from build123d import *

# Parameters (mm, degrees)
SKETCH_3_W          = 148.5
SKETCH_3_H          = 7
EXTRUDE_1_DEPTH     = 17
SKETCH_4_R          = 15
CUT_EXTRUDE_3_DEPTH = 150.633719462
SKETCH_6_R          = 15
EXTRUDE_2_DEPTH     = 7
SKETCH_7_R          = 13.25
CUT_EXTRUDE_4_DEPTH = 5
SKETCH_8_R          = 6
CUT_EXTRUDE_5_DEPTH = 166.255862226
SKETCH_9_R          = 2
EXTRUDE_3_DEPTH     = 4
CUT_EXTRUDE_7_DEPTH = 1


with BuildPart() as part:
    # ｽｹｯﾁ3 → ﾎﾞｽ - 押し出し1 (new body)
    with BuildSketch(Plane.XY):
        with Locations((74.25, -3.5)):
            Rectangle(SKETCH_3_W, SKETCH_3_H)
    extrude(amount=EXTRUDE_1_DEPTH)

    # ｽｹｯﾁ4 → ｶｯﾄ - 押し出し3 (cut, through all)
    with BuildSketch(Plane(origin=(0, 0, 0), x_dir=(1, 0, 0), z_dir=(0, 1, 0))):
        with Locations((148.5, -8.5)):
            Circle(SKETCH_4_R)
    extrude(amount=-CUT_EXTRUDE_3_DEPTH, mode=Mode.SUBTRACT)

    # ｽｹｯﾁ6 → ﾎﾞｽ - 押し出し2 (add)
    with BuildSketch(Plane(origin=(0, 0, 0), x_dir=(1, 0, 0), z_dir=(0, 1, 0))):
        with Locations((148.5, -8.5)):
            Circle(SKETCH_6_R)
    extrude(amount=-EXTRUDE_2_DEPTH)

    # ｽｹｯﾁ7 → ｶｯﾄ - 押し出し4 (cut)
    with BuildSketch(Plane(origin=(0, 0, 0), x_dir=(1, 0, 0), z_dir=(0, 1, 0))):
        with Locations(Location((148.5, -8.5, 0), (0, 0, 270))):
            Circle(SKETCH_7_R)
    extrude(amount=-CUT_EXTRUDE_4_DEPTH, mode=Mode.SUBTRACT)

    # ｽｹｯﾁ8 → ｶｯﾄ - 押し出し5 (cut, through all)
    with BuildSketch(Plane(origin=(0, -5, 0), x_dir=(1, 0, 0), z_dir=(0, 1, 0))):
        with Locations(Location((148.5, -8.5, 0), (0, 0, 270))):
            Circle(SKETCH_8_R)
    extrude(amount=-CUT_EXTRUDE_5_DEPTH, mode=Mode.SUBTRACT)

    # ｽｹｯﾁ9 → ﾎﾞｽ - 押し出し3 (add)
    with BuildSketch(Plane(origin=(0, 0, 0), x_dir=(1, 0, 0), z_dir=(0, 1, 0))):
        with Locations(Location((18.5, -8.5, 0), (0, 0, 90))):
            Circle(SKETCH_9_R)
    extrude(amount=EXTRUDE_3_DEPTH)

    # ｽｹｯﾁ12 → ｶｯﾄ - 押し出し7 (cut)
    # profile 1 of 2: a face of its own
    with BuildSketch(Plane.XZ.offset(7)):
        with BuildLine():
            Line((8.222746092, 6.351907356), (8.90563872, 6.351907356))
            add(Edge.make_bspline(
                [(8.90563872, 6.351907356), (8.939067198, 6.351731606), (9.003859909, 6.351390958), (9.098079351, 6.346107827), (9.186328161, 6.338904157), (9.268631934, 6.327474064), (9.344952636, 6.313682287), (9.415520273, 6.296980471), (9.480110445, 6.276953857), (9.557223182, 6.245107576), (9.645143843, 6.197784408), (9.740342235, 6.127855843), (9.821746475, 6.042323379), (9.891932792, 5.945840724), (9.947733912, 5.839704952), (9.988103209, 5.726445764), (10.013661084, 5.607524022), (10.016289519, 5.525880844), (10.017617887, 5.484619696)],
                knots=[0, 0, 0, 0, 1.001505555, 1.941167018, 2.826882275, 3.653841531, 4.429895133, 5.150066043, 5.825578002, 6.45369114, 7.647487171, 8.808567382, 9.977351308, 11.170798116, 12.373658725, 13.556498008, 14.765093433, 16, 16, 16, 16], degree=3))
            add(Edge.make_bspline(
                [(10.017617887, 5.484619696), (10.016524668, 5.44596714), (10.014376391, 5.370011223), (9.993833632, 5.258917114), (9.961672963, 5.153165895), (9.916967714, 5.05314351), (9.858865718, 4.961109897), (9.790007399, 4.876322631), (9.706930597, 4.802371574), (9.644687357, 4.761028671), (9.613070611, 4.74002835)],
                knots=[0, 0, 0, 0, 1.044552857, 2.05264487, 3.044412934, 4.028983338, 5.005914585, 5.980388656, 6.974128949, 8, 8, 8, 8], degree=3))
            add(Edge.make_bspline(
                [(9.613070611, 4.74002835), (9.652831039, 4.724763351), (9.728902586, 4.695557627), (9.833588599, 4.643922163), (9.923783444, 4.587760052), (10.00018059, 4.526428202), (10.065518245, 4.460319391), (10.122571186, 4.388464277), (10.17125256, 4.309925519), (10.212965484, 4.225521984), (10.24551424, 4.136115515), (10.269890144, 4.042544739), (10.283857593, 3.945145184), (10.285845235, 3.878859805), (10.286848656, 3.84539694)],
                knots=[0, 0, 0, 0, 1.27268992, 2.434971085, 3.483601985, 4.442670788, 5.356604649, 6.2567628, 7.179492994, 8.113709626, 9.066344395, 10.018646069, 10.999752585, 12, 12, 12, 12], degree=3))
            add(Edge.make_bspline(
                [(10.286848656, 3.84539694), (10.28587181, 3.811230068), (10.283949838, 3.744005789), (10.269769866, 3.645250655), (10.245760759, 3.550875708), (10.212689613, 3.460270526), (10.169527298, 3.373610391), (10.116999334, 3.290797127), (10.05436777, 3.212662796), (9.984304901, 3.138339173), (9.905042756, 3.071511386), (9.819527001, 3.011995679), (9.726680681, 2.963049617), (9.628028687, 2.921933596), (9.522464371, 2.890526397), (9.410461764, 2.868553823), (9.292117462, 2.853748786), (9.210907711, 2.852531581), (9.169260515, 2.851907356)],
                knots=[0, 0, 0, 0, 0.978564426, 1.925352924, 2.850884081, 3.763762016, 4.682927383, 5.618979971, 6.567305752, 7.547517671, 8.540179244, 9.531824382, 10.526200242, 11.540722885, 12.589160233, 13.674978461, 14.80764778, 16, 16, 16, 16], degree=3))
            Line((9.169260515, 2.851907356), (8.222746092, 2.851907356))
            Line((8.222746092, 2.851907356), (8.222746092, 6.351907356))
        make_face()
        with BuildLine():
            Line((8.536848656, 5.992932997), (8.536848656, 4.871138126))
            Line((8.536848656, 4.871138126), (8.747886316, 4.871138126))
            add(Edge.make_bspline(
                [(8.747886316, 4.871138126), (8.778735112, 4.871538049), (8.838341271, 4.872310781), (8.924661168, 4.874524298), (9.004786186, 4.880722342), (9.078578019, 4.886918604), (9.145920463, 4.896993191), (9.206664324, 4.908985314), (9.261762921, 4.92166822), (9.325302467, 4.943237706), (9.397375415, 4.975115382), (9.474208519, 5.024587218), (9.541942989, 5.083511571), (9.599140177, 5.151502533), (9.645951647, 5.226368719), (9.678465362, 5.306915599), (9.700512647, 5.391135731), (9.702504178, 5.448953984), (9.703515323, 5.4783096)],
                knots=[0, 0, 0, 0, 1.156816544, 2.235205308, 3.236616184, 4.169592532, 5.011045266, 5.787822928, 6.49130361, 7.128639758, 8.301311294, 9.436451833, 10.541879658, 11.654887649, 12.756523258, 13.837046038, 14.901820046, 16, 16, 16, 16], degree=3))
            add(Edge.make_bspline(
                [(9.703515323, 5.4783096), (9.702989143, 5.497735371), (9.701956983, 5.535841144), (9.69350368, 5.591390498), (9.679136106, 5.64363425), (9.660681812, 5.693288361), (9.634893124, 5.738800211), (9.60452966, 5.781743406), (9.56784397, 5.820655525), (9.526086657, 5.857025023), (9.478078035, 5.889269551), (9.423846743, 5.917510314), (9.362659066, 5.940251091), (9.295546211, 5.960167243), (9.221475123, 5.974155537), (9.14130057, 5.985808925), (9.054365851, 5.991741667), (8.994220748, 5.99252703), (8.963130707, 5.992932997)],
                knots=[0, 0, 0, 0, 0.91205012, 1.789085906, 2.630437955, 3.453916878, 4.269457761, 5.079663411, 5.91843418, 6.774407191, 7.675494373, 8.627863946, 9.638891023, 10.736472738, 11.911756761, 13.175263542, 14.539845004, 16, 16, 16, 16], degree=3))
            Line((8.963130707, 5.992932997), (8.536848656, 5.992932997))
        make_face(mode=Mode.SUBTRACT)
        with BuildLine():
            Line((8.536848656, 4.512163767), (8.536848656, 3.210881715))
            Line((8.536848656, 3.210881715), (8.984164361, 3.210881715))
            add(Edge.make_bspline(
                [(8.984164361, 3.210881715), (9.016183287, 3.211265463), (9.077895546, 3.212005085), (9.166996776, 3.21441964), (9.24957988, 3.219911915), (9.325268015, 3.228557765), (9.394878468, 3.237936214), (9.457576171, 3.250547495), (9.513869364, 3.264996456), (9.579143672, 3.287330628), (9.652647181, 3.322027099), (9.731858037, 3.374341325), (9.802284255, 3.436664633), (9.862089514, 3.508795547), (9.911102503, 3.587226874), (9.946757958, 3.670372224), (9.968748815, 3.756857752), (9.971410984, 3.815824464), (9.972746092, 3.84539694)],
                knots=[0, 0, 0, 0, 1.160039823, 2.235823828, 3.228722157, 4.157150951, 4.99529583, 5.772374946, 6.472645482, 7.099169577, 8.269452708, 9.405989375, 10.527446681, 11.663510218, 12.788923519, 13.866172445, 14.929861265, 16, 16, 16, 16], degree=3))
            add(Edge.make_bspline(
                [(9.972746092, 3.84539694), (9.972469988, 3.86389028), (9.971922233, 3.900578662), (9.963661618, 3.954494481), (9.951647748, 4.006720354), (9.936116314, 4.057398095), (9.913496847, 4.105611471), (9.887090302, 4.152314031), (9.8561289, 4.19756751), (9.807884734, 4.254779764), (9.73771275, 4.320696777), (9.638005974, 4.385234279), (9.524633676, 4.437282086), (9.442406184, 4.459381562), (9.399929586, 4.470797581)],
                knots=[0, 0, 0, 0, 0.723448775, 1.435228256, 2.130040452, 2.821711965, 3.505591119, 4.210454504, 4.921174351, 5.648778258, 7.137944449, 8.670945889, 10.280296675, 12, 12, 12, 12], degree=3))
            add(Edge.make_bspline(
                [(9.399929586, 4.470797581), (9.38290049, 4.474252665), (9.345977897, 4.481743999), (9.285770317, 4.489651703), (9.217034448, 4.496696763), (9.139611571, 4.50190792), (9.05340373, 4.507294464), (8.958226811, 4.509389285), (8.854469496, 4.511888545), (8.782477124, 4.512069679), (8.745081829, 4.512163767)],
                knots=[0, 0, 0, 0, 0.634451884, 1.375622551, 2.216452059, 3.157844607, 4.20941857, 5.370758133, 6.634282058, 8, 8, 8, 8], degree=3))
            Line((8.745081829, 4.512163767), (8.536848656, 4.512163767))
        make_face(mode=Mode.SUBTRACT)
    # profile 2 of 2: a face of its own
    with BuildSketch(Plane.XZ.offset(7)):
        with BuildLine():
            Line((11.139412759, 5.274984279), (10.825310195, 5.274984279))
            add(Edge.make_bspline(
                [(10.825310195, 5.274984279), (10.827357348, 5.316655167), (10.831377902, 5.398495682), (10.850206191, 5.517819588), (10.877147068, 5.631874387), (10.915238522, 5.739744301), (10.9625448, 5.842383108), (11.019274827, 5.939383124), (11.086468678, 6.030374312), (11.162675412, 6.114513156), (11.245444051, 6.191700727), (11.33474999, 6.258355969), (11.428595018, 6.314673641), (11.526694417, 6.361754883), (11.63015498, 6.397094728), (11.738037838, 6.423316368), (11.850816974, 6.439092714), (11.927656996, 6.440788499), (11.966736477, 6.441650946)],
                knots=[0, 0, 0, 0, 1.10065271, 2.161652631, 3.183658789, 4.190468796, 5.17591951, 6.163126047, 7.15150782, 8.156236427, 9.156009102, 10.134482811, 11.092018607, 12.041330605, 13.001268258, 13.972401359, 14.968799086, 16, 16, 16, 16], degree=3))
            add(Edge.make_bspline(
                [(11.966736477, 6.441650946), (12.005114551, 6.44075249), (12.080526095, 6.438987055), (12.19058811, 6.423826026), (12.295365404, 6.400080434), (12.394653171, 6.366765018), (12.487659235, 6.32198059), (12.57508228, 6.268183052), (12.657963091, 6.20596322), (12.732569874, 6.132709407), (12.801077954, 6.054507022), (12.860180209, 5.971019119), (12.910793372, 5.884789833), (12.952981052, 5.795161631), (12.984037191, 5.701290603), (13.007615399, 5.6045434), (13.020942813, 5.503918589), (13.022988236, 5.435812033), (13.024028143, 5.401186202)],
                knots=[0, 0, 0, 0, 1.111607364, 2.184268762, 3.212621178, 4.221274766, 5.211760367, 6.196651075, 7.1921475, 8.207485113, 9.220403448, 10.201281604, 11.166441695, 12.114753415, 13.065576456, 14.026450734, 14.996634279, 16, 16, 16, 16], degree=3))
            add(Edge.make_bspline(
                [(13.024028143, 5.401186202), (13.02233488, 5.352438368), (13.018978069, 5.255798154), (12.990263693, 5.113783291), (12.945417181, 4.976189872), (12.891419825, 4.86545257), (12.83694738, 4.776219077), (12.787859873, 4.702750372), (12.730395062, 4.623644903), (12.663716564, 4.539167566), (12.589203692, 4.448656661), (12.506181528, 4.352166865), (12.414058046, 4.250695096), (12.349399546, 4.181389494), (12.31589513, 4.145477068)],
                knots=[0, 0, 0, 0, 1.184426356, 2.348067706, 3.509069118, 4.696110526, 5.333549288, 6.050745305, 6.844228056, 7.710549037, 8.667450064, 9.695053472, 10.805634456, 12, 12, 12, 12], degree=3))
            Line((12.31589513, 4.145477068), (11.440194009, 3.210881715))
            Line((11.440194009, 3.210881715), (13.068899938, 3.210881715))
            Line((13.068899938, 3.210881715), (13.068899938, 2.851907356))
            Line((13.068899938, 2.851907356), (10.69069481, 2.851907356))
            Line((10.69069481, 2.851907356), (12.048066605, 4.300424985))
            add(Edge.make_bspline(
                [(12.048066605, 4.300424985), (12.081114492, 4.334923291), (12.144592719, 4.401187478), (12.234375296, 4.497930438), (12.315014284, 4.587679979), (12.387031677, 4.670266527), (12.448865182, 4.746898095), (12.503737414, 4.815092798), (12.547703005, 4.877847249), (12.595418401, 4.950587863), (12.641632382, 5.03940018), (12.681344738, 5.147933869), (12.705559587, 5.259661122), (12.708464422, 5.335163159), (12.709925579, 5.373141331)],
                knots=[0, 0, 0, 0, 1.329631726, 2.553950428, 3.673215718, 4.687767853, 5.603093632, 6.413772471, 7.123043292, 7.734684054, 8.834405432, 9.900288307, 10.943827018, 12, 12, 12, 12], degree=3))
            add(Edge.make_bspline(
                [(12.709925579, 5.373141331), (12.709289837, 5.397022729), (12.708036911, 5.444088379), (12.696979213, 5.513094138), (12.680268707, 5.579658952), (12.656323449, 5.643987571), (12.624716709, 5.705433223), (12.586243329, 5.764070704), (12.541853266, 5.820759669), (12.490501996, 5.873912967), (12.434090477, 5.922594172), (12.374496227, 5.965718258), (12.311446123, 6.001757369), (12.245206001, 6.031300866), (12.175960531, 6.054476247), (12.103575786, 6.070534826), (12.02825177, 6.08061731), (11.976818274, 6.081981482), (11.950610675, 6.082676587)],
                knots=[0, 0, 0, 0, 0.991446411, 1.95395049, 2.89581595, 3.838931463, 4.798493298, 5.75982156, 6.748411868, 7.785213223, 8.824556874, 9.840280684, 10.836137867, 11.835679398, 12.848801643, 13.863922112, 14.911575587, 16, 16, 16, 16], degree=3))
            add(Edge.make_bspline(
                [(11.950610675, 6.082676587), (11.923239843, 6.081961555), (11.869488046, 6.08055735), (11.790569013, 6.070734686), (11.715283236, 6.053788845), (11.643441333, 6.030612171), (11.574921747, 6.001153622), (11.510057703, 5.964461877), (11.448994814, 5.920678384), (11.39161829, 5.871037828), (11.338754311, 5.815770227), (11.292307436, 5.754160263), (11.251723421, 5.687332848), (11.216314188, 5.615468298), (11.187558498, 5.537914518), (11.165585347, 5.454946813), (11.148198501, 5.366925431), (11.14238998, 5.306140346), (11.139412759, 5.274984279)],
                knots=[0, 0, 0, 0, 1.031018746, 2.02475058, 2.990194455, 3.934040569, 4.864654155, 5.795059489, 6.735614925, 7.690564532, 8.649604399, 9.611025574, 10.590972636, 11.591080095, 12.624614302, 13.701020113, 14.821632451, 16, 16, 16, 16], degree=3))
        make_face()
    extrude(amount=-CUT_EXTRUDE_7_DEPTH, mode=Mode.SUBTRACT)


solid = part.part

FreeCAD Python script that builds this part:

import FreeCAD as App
import Part
import Sketcher
from FreeCAD import Vector
Q = App.Units.Quantity


def add_polygon(sketch, points):
    """Adds a closed chain of lines whose ends are joined by coincident constraints."""
    first, n = sketch.GeometryCount, len(points)
    for a, b in zip(points, points[1:] + points[:1]):
        sketch.addGeometry(Part.LineSegment(App.Vector(*a, 0), App.Vector(*b, 0)), False)
    for i in range(n):
        sketch.addConstraint(Sketcher.Constraint("Coincident", first + i, 2, first + (i + 1) % n, 1))

doc = App.newDocument("Part")
params = doc.addObject("Spreadsheet::Sheet", "Params")
for row, (alias, value) in enumerate([
    ("sketch1_height", "7 mm"),
    ("sketch1_width", "148.5 mm"),
    ("pad1_length", "17 mm"),
    ("sketch2_diameter", "30 mm"),
    ("sketch3_diameter", "30 mm"),
    ("pad2_length", "7 mm"),
    ("sketch4_diameter", "26.5 mm"),
    ("pocket2_length", "5 mm"),
    ("sketch5_diameter", "12 mm"),
    ("sketch6_diameter", "4 mm"),
    ("pad3_length", "4 mm"),
    ("pocket4_length", "1 mm"),
], start=1):
    params.set(f"A{row}", alias)
    params.set(f"B{row}", "=" + value)
    params.setAlias(f"B{row}", alias)

body = doc.addObject("PartDesign::Body", "Body")

sketch1 = body.newObject("Sketcher::SketchObject", "Sketch")
sketch1.AttachmentSupport = (doc.getObject("XY_Plane"), [""])
sketch1.MapMode = "FlatFace"
add_polygon(sketch1, [(0, 0), (0, -7), (148.5, -7), (148.5, 0)])
sketch1.addConstraint(Sketcher.Constraint("Vertical", 0))
sketch1.addConstraint(Sketcher.Constraint("Horizontal", 1))
sketch1.addConstraint(Sketcher.Constraint("Vertical", 2))
sketch1.addConstraint(Sketcher.Constraint("Horizontal", 3))
sketch1.addConstraint(Sketcher.Constraint("Coincident", 3, 2, -1, 1))
sketch1.addConstraint(Sketcher.Constraint("DistanceY", 0, 2, 0, 1, Q("7 mm")))
sketch1.addConstraint(Sketcher.Constraint("DistanceX", 1, 1, 1, 2, Q("148.5 mm")))
sketch1.setExpression("Constraints[9]", "Params.sketch1_height")
sketch1.setExpression("Constraints[10]", "Params.sketch1_width")
pad1 = body.newObject("PartDesign::Pad", "Pad")
pad1.Profile = sketch1
pad1.setExpression("Length", "Params.pad1_length")

sketch2 = body.newObject("Sketcher::SketchObject", "Sketch001")
sketch2.AttachmentSupport = (doc.getObject("XZ_Plane"), [""])
sketch2.MapMode = "FlatFace"
sketch2.addGeometry(Part.Circle(Vector(148.5, 8.5, 0), Vector(0, 0, 1), 15), False)
sketch2.addConstraint(Sketcher.Constraint("Diameter", 0, Q("30 mm")))
sketch2.addConstraint(Sketcher.Constraint("DistanceX", -1, 1, 0, 3, Q("148.5 mm")))
sketch2.addConstraint(Sketcher.Constraint("DistanceY", -1, 1, 0, 3, Q("8.5 mm")))
sketch2.setExpression("Constraints[0]", "Params.sketch2_diameter")
pocket1 = body.newObject("PartDesign::Pocket", "Pocket")
pocket1.Profile = sketch2
pocket1.Type = "ThroughAll"
pocket1.Reversed = True

sketch3 = body.newObject("Sketcher::SketchObject", "Sketch002")
sketch3.AttachmentSupport = (doc.getObject("XZ_Plane"), [""])
sketch3.MapMode = "FlatFace"
sketch3.addGeometry(Part.Circle(Vector(148.5, 8.5, 0), Vector(0, 0, 1), 15), False)
sketch3.addConstraint(Sketcher.Constraint("Diameter", 0, Q("30 mm")))
sketch3.addConstraint(Sketcher.Constraint("DistanceX", -1, 1, 0, 3, Q("148.5 mm")))
sketch3.addConstraint(Sketcher.Constraint("DistanceY", -1, 1, 0, 3, Q("8.5 mm")))
sketch3.setExpression("Constraints[0]", "Params.sketch3_diameter")
pad2 = body.newObject("PartDesign::Pad", "Pad001")
pad2.Profile = sketch3
pad2.setExpression("Length", "Params.pad2_length")

sketch4 = body.newObject("Sketcher::SketchObject", "Sketch003")
sketch4.AttachmentSupport = (doc.getObject("XZ_Plane"), [""])
sketch4.MapMode = "FlatFace"
sketch4.addGeometry(Part.Circle(Vector(148.5, 8.5, 0), Vector(0, 0, 1), 13.25), False)
sketch4.addConstraint(Sketcher.Constraint("Diameter", 0, Q("26.5 mm")))
sketch4.addConstraint(Sketcher.Constraint("DistanceX", -1, 1, 0, 3, Q("148.5 mm")))
sketch4.addConstraint(Sketcher.Constraint("DistanceY", -1, 1, 0, 3, Q("8.5 mm")))
sketch4.setExpression("Constraints[0]", "Params.sketch4_diameter")
pocket2 = body.newObject("PartDesign::Pocket", "Pocket001")
pocket2.Profile = sketch4
pocket2.setExpression("Length", "Params.pocket2_length")
pocket2.Reversed = True

sketch5 = body.newObject("Sketcher::SketchObject", "Sketch004")
sketch5.AttachmentSupport = (doc.getObject("XZ_Plane"), [""])
sketch5.MapMode = "FlatFace"
sketch5.AttachmentOffset = App.Placement(Vector(0, 0, 5), App.Rotation())
sketch5.addGeometry(Part.Circle(Vector(148.5, 8.5, 0), Vector(0, 0, 1), 6), False)
sketch5.addConstraint(Sketcher.Constraint("Diameter", 0, Q("12 mm")))
sketch5.addConstraint(Sketcher.Constraint("DistanceX", -1, 1, 0, 3, Q("148.5 mm")))
sketch5.addConstraint(Sketcher.Constraint("DistanceY", -1, 1, 0, 3, Q("8.5 mm")))
sketch5.setExpression("Constraints[0]", "Params.sketch5_diameter")
pocket3 = body.newObject("PartDesign::Pocket", "Pocket002")
pocket3.Profile = sketch5
pocket3.Type = "ThroughAll"
pocket3.Reversed = True

sketch6 = body.newObject("Sketcher::SketchObject", "Sketch005")
sketch6.AttachmentSupport = (doc.getObject("XZ_Plane"), [""])
sketch6.MapMode = "FlatFace"
sketch6.addGeometry(Part.Circle(Vector(18.5, 8.5, 0), Vector(0, 0, 1), 2), False)
sketch6.addConstraint(Sketcher.Constraint("Diameter", 0, Q("4 mm")))
sketch6.addConstraint(Sketcher.Constraint("DistanceX", -1, 1, 0, 3, Q("18.5 mm")))
sketch6.addConstraint(Sketcher.Constraint("DistanceY", -1, 1, 0, 3, Q("8.5 mm")))
sketch6.setExpression("Constraints[0]", "Params.sketch6_diameter")
pad3 = body.newObject("PartDesign::Pad", "Pad002")
pad3.Profile = sketch6
pad3.setExpression("Length", "Params.pad3_length")
pad3.Reversed = True

sketch7 = body.newObject("Sketcher::SketchObject", "Sketch006")
sketch7.AttachmentSupport = (doc.getObject("XZ_Plane"), [""])
sketch7.MapMode = "FlatFace"
sketch7.AttachmentOffset = App.Placement(Vector(0, 0, 7), App.Rotation())
sketch7.addGeometry(Part.LineSegment(Vector(8.905639, 6.351907, 0), Vector(8.222746, 6.351907, 0)), False)
sketch7.addGeometry(Part.LineSegment(Vector(8.222746, 6.351907, 0), Vector(8.222746, 2.851907, 0)), False)
sketch7.addGeometry(Part.LineSegment(Vector(8.222746, 2.851907, 0), Vector(9.169261, 2.851907, 0)), False)
sketch7.addGeometry(Part.BSplineCurve([Vector(10.286849, 3.845397, 0), Vector(10.285872, 3.81123, 0), Vector(10.28395, 3.744006, 0), Vector(10.26977, 3.645251, 0), Vector(10.245761, 3.550876, 0), Vector(10.21269, 3.460271, 0), Vector(10.169527, 3.37361, 0), Vector(10.116999, 3.290797, 0), Vector(10.054368, 3.212663, 0), Vector(9.984305, 3.138339, 0), Vector(9.905043, 3.071511, 0), Vector(9.819527, 3.011996, 0), Vector(9.726681, 2.96305, 0), Vector(9.628029, 2.921934, 0), Vector(9.522464, 2.890526, 0), Vector(9.410462, 2.868554, 0), Vector(9.292117, 2.853749, 0), Vector(9.210908, 2.852532, 0), Vector(9.169261, 2.851907, 0)], [4, 1, 1, 1, 1, 1, 1, 1, 1, 1, 1, 1, 1, 1, 1, 1, 4], [0, 0.978564426, 1.925352924, 2.850884081, 3.763762016, 4.682927383, 5.618979971, 6.567305752, 7.547517671, 8.540179244, 9.531824382, 10.526200242, 11.540722885, 12.589160233, 13.674978461, 14.80764778, 16], False, 3, [1, 1, 1, 1, 1, 1, 1, 1, 1, 1, 1, 1, 1, 1, 1, 1, 1, 1, 1], False), False)
sketch7.addGeometry(Part.BSplineCurve([Vector(9.613071, 4.740028, 0), Vector(9.652831, 4.724763, 0), Vector(9.728903, 4.695558, 0), Vector(9.833589, 4.643922, 0), Vector(9.923783, 4.58776, 0), Vector(10.000181, 4.526428, 0), Vector(10.065518, 4.460319, 0), Vector(10.122571, 4.388464, 0), Vector(10.171253, 4.309926, 0), Vector(10.212965, 4.225522, 0), Vector(10.245514, 4.136116, 0), Vector(10.26989, 4.042545, 0), Vector(10.283858, 3.945145, 0), Vector(10.285845, 3.87886, 0), Vector(10.286849, 3.845397, 0)], [4, 1, 1, 1, 1, 1, 1, 1, 1, 1, 1, 1, 4], [0, 1.27268992, 2.434971085, 3.483601985, 4.442670788, 5.356604649, 6.2567628, 7.179492994, 8.113709626, 9.066344395, 10.018646069, 10.999752585, 12], False, 3, [1, 1, 1, 1, 1, 1, 1, 1, 1, 1, 1, 1, 1, 1, 1], False), False)
sketch7.addGeometry(Part.BSplineCurve([Vector(10.017618, 5.48462, 0), Vector(10.016525, 5.445967, 0), Vector(10.014376, 5.370011, 0), Vector(9.993834, 5.258917, 0), Vector(9.961673, 5.153166, 0), Vector(9.916968, 5.053144, 0), Vector(9.858866, 4.96111, 0), Vector(9.790007, 4.876323, 0), Vector(9.706931, 4.802372, 0), Vector(9.644687, 4.761029, 0), Vector(9.613071, 4.740028, 0)], [4, 1, 1, 1, 1, 1, 1, 1, 4], [0, 1.044552857, 2.05264487, 3.044412934, 4.028983338, 5.005914585, 5.980388656, 6.974128949, 8], False, 3, [1, 1, 1, 1, 1, 1, 1, 1, 1, 1, 1], False), False)
sketch7.addGeometry(Part.BSplineCurve([Vector(8.905639, 6.351907, 0), Vector(8.939067, 6.351732, 0), Vector(9.00386, 6.351391, 0), Vector(9.098079, 6.346108, 0), Vector(9.186328, 6.338904, 0), Vector(9.268632, 6.327474, 0), Vector(9.344953, 6.313682, 0), Vector(9.41552, 6.29698, 0), Vector(9.48011, 6.276954, 0), Vector(9.557223, 6.245108, 0), Vector(9.645144, 6.197784, 0), Vector(9.740342, 6.127856, 0), Vector(9.821746, 6.042323, 0), Vector(9.891933, 5.945841, 0), Vector(9.947734, 5.839705, 0), Vector(9.988103, 5.726446, 0), Vector(10.013661, 5.607524, 0), Vector(10.01629, 5.525881, 0), Vector(10.017618, 5.48462, 0)], [4, 1, 1, 1, 1, 1, 1, 1, 1, 1, 1, 1, 1, 1, 1, 1, 4], [0, 1.001505555, 1.941167018, 2.826882275, 3.653841531, 4.429895133, 5.150066043, 5.825578002, 6.45369114, 7.647487171, 8.808567382, 9.977351308, 11.170798116, 12.373658725, 13.556498008, 14.765093433, 16], False, 3, [1, 1, 1, 1, 1, 1, 1, 1, 1, 1, 1, 1, 1, 1, 1, 1, 1, 1, 1], False), False)
sketch7.addGeometry(Part.LineSegment(Vector(8.536849, 4.512164, 0), Vector(8.745082, 4.512164, 0)), False)
sketch7.addGeometry(Part.BSplineCurve([Vector(9.39993, 4.470798, 0), Vector(9.3829, 4.474253, 0), Vector(9.345978, 4.481744, 0), Vector(9.28577, 4.489652, 0), Vector(9.217034, 4.496697, 0), Vector(9.139612, 4.501908, 0), Vector(9.053404, 4.507294, 0), Vector(8.958227, 4.509389, 0), Vector(8.854469, 4.511889, 0), Vector(8.782477, 4.51207, 0), Vector(8.745082, 4.512164, 0)], [4, 1, 1, 1, 1, 1, 1, 1, 4], [0, 0.634451884, 1.375622551, 2.216452059, 3.157844607, 4.20941857, 5.370758133, 6.634282058, 8], False, 3, [1, 1, 1, 1, 1, 1, 1, 1, 1, 1, 1], False), False)
sketch7.addGeometry(Part.BSplineCurve([Vector(9.972746, 3.845397, 0), Vector(9.97247, 3.86389, 0), Vector(9.971922, 3.900579, 0), Vector(9.963662, 3.954494, 0), Vector(9.951648, 4.00672, 0), Vector(9.936116, 4.057398, 0), Vector(9.913497, 4.105611, 0), Vector(9.88709, 4.152314, 0), Vector(9.856129, 4.197568, 0), Vector(9.807885, 4.25478, 0), Vector(9.737713, 4.320697, 0), Vector(9.638006, 4.385234, 0), Vector(9.524634, 4.437282, 0), Vector(9.442406, 4.459382, 0), Vector(9.39993, 4.470798, 0)], [4, 1, 1, 1, 1, 1, 1, 1, 1, 1, 1, 1, 4], [0, 0.723448775, 1.435228256, 2.130040452, 2.821711965, 3.505591119, 4.210454504, 4.921174351, 5.648778258, 7.137944449, 8.670945889, 10.280296675, 12], False, 3, [1, 1, 1, 1, 1, 1, 1, 1, 1, 1, 1, 1, 1, 1, 1], False), False)
sketch7.addGeometry(Part.BSplineCurve([Vector(8.984164, 3.210882, 0), Vector(9.016183, 3.211265, 0), Vector(9.077896, 3.212005, 0), Vector(9.166997, 3.21442, 0), Vector(9.24958, 3.219912, 0), Vector(9.325268, 3.228558, 0), Vector(9.394878, 3.237936, 0), Vector(9.457576, 3.250547, 0), Vector(9.513869, 3.264996, 0), Vector(9.579144, 3.287331, 0), Vector(9.652647, 3.322027, 0), Vector(9.731858, 3.374341, 0), Vector(9.802284, 3.436665, 0), Vector(9.86209, 3.508796, 0), Vector(9.911103, 3.587227, 0), Vector(9.946758, 3.670372, 0), Vector(9.968749, 3.756858, 0), Vector(9.971411, 3.815824, 0), Vector(9.972746, 3.845397, 0)], [4, 1, 1, 1, 1, 1, 1, 1, 1, 1, 1, 1, 1, 1, 1, 1, 4], [0, 1.160039823, 2.235823828, 3.228722157, 4.157150951, 4.99529583, 5.772374946, 6.472645482, 7.099169577, 8.269452708, 9.405989375, 10.527446681, 11.663510218, 12.788923519, 13.866172445, 14.929861265, 16], False, 3, [1, 1, 1, 1, 1, 1, 1, 1, 1, 1, 1, 1, 1, 1, 1, 1, 1, 1, 1], False), False)
sketch7.addGeometry(Part.LineSegment(Vector(8.984164, 3.210882, 0), Vector(8.536849, 3.210882, 0)), False)
sketch7.addGeometry(Part.LineSegment(Vector(8.536849, 3.210882, 0), Vector(8.536849, 4.512164, 0)), False)
sketch7.addGeometry(Part.LineSegment(Vector(8.536849, 5.992933, 0), Vector(8.963131, 5.992933, 0)), False)
sketch7.addGeometry(Part.BSplineCurve([Vector(9.703515, 5.47831, 0), Vector(9.702989, 5.497735, 0), Vector(9.701957, 5.535841, 0), Vector(9.693504, 5.59139, 0), Vector(9.679136, 5.643634, 0), Vector(9.660682, 5.693288, 0), Vector(9.634893, 5.7388, 0), Vector(9.60453, 5.781743, 0), Vector(9.567844, 5.820656, 0), Vector(9.526087, 5.857025, 0), Vector(9.478078, 5.88927, 0), Vector(9.423847, 5.91751, 0), Vector(9.362659, 5.940251, 0), Vector(9.295546, 5.960167, 0), Vector(9.221475, 5.974156, 0), Vector(9.141301, 5.985809, 0), Vector(9.054366, 5.991742, 0), Vector(8.994221, 5.992527, 0), Vector(8.963131, 5.992933, 0)], [4, 1, 1, 1, 1, 1, 1, 1, 1, 1, 1, 1, 1, 1, 1, 1, 4], [0, 0.91205012, 1.789085906, 2.630437955, 3.453916878, 4.269457761, 5.079663411, 5.91843418, 6.774407191, 7.675494373, 8.627863946, 9.638891023, 10.736472738, 11.911756761, 13.175263542, 14.539845004, 16], False, 3, [1, 1, 1, 1, 1, 1, 1, 1, 1, 1, 1, 1, 1, 1, 1, 1, 1, 1, 1], False), False)
sketch7.addGeometry(Part.BSplineCurve([Vector(8.747886, 4.871138, 0), Vector(8.778735, 4.871538, 0), Vector(8.838341, 4.872311, 0), Vector(8.924661, 4.874524, 0), Vector(9.004786, 4.880722, 0), Vector(9.078578, 4.886919, 0), Vector(9.14592, 4.896993, 0), Vector(9.206664, 4.908985, 0), Vector(9.261763, 4.921668, 0), Vector(9.325302, 4.943238, 0), Vector(9.397375, 4.975115, 0), Vector(9.474209, 5.024587, 0), Vector(9.541943, 5.083512, 0), Vector(9.59914, 5.151503, 0), Vector(9.645952, 5.226369, 0), Vector(9.678465, 5.306916, 0), Vector(9.700513, 5.391136, 0), Vector(9.702504, 5.448954, 0), Vector(9.703515, 5.47831, 0)], [4, 1, 1, 1, 1, 1, 1, 1, 1, 1, 1, 1, 1, 1, 1, 1, 4], [0, 1.156816544, 2.235205308, 3.236616184, 4.169592532, 5.011045266, 5.787822928, 6.49130361, 7.128639758, 8.301311294, 9.436451833, 10.541879658, 11.654887649, 12.756523258, 13.837046038, 14.901820046, 16], False, 3, [1, 1, 1, 1, 1, 1, 1, 1, 1, 1, 1, 1, 1, 1, 1, 1, 1, 1, 1], False), False)
sketch7.addGeometry(Part.LineSegment(Vector(8.747886, 4.871138, 0), Vector(8.536849, 4.871138, 0)), False)
sketch7.addGeometry(Part.LineSegment(Vector(8.536849, 4.871138, 0), Vector(8.536849, 5.992933, 0)), False)
sketch7.addGeometry(Part.LineSegment(Vector(10.82531, 5.274984, 0), Vector(11.139413, 5.274984, 0)), False)
sketch7.addGeometry(Part.BSplineCurve([Vector(11.950611, 6.082677, 0), Vector(11.92324, 6.081962, 0), Vector(11.869488, 6.080557, 0), Vector(11.790569, 6.070735, 0), Vector(11.715283, 6.053789, 0), Vector(11.643441, 6.030612, 0), Vector(11.574922, 6.001154, 0), Vector(11.510058, 5.964462, 0), Vector(11.448995, 5.920678, 0), Vector(11.391618, 5.871038, 0), Vector(11.338754, 5.81577, 0), Vector(11.292307, 5.75416, 0), Vector(11.251723, 5.687333, 0), Vector(11.216314, 5.615468, 0), Vector(11.187558, 5.537915, 0), Vector(11.165585, 5.454947, 0), Vector(11.148199, 5.366925, 0), Vector(11.14239, 5.30614, 0), Vector(11.139413, 5.274984, 0)], [4, 1, 1, 1, 1, 1, 1, 1, 1, 1, 1, 1, 1, 1, 1, 1, 4], [0, 1.031018746, 2.02475058, 2.990194455, 3.934040569, 4.864654155, 5.795059489, 6.735614925, 7.690564532, 8.649604399, 9.611025574, 10.590972636, 11.591080095, 12.624614302, 13.701020113, 14.821632451, 16], False, 3, [1, 1, 1, 1, 1, 1, 1, 1, 1, 1, 1, 1, 1, 1, 1, 1, 1, 1, 1], False), False)
sketch7.addGeometry(Part.BSplineCurve([Vector(12.709926, 5.373141, 0), Vector(12.70929, 5.397023, 0), Vector(12.708037, 5.444088, 0), Vector(12.696979, 5.513094, 0), Vector(12.680269, 5.579659, 0), Vector(12.656323, 5.643988, 0), Vector(12.624717, 5.705433, 0), Vector(12.586243, 5.764071, 0), Vector(12.541853, 5.82076, 0), Vector(12.490502, 5.873913, 0), Vector(12.43409, 5.922594, 0), Vector(12.374496, 5.965718, 0), Vector(12.311446, 6.001757, 0), Vector(12.245206, 6.031301, 0), Vector(12.175961, 6.054476, 0), Vector(12.103576, 6.070535, 0), Vector(12.028252, 6.080617, 0), Vector(11.976818, 6.081981, 0), Vector(11.950611, 6.082677, 0)], [4, 1, 1, 1, 1, 1, 1, 1, 1, 1, 1, 1, 1, 1, 1, 1, 4], [0, 0.991446411, 1.95395049, 2.89581595, 3.838931463, 4.798493298, 5.75982156, 6.748411868, 7.785213223, 8.824556874, 9.840280684, 10.836137867, 11.835679398, 12.848801643, 13.863922112, 14.911575587, 16], False, 3, [1, 1, 1, 1, 1, 1, 1, 1, 1, 1, 1, 1, 1, 1, 1, 1, 1, 1, 1], False), False)
sketch7.addGeometry(Part.BSplineCurve([Vector(12.048067, 4.300425, 0), Vector(12.081114, 4.334923, 0), Vector(12.144593, 4.401187, 0), Vector(12.234375, 4.49793, 0), Vector(12.315014, 4.58768, 0), Vector(12.387032, 4.670267, 0), Vector(12.448865, 4.746898, 0), Vector(12.503737, 4.815093, 0), Vector(12.547703, 4.877847, 0), Vector(12.595418, 4.950588, 0), Vector(12.641632, 5.0394, 0), Vector(12.681345, 5.147934, 0), Vector(12.70556, 5.259661, 0), Vector(12.708464, 5.335163, 0), Vector(12.709926, 5.373141, 0)], [4, 1, 1, 1, 1, 1, 1, 1, 1, 1, 1, 1, 4], [0, 1.329631726, 2.553950428, 3.673215718, 4.687767853, 5.603093632, 6.413772471, 7.123043292, 7.734684054, 8.834405432, 9.900288307, 10.943827018, 12], False, 3, [1, 1, 1, 1, 1, 1, 1, 1, 1, 1, 1, 1, 1, 1, 1], False), False)
sketch7.addGeometry(Part.LineSegment(Vector(12.048067, 4.300425, 0), Vector(10.690695, 2.851907, 0)), False)
sketch7.addGeometry(Part.LineSegment(Vector(10.690695, 2.851907, 0), Vector(13.0689, 2.851907, 0)), False)
sketch7.addGeometry(Part.LineSegment(Vector(13.0689, 2.851907, 0), Vector(13.0689, 3.210882, 0)), False)
sketch7.addGeometry(Part.LineSegment(Vector(13.0689, 3.210882, 0), Vector(11.440194, 3.210882, 0)), False)
sketch7.addGeometry(Part.LineSegment(Vector(11.440194, 3.210882, 0), Vector(12.315895, 4.145477, 0)), False)
sketch7.addGeometry(Part.BSplineCurve([Vector(13.024028, 5.401186, 0), Vector(13.022335, 5.352438, 0), Vector(13.018978, 5.255798, 0), Vector(12.990264, 5.113783, 0), Vector(12.945417, 4.97619, 0), Vector(12.89142, 4.865453, 0), Vector(12.836947, 4.776219, 0), Vector(12.78786, 4.70275, 0), Vector(12.730395, 4.623645, 0), Vector(12.663717, 4.539168, 0), Vector(12.589204, 4.448657, 0), Vector(12.506182, 4.352167, 0), Vector(12.414058, 4.250695, 0), Vector(12.3494, 4.181389, 0), Vector(12.315895, 4.145477, 0)], [4, 1, 1, 1, 1, 1, 1, 1, 1, 1, 1, 1, 4], [0, 1.184426356, 2.348067706, 3.509069118, 4.696110526, 5.333549288, 6.050745305, 6.844228056, 7.710549037, 8.667450064, 9.695053472, 10.805634456, 12], False, 3, [1, 1, 1, 1, 1, 1, 1, 1, 1, 1, 1, 1, 1, 1, 1], False), False)
sketch7.addGeometry(Part.BSplineCurve([Vector(11.966736, 6.441651, 0), Vector(12.005115, 6.440752, 0), Vector(12.080526, 6.438987, 0), Vector(12.190588, 6.423826, 0), Vector(12.295365, 6.40008, 0), Vector(12.394653, 6.366765, 0), Vector(12.487659, 6.321981, 0), Vector(12.575082, 6.268183, 0), Vector(12.657963, 6.205963, 0), Vector(12.73257, 6.132709, 0), Vector(12.801078, 6.054507, 0), Vector(12.86018, 5.971019, 0), Vector(12.910793, 5.88479, 0), Vector(12.952981, 5.795162, 0), Vector(12.984037, 5.701291, 0), Vector(13.007615, 5.604543, 0), Vector(13.020943, 5.503919, 0), Vector(13.022988, 5.435812, 0), Vector(13.024028, 5.401186, 0)], [4, 1, 1, 1, 1, 1, 1, 1, 1, 1, 1, 1, 1, 1, 1, 1, 4], [0, 1.111607364, 2.184268762, 3.212621178, 4.221274766, 5.211760367, 6.196651075, 7.1921475, 8.207485113, 9.220403448, 10.201281604, 11.166441695, 12.114753415, 13.065576456, 14.026450734, 14.996634279, 16], False, 3, [1, 1, 1, 1, 1, 1, 1, 1, 1, 1, 1, 1, 1, 1, 1, 1, 1, 1, 1], False), False)
sketch7.addGeometry(Part.BSplineCurve([Vector(10.82531, 5.274984, 0), Vector(10.827357, 5.316655, 0), Vector(10.831378, 5.398496, 0), Vector(10.850206, 5.51782, 0), Vector(10.877147, 5.631874, 0), Vector(10.915239, 5.739744, 0), Vector(10.962545, 5.842383, 0), Vector(11.019275, 5.939383, 0), Vector(11.086469, 6.030374, 0), Vector(11.162675, 6.114513, 0), Vector(11.245444, 6.191701, 0), Vector(11.33475, 6.258356, 0), Vector(11.428595, 6.314674, 0), Vector(11.526694, 6.361755, 0), Vector(11.630155, 6.397095, 0), Vector(11.738038, 6.423316, 0), Vector(11.850817, 6.439093, 0), Vector(11.927657, 6.440788, 0), Vector(11.966736, 6.441651, 0)], [4, 1, 1, 1, 1, 1, 1, 1, 1, 1, 1, 1, 1, 1, 1, 1, 4], [0, 1.10065271, 2.161652631, 3.183658789, 4.190468796, 5.17591951, 6.163126047, 7.15150782, 8.156236427, 9.156009102, 10.134482811, 11.092018607, 12.041330605, 13.001268258, 13.972401359, 14.968799086, 16], False, 3, [1, 1, 1, 1, 1, 1, 1, 1, 1, 1, 1, 1, 1, 1, 1, 1, 1, 1, 1], False), False)
sketch7.addConstraint(Sketcher.Constraint("Block", 3))
sketch7.addConstraint(Sketcher.Constraint("Block", 4))
sketch7.addConstraint(Sketcher.Constraint("Block", 5))
sketch7.addConstraint(Sketcher.Constraint("Block", 6))
sketch7.addConstraint(Sketcher.Constraint("Block", 8))
sketch7.addConstraint(Sketcher.Constraint("Block", 9))
sketch7.addConstraint(Sketcher.Constraint("Block", 10))
sketch7.addConstraint(Sketcher.Constraint("Block", 14))
sketch7.addConstraint(Sketcher.Constraint("Block", 15))
sketch7.addConstraint(Sketcher.Constraint("Block", 19))
sketch7.addConstraint(Sketcher.Constraint("Block", 20))
sketch7.addConstraint(Sketcher.Constraint("Block", 21))
sketch7.addConstraint(Sketcher.Constraint("Block", 27))
sketch7.addConstraint(Sketcher.Constraint("Block", 28))
sketch7.addConstraint(Sketcher.Constraint("Block", 29))
sketch7.addConstraint(Sketcher.Constraint("Coincident", 0, 2, 1, 1))
sketch7.addConstraint(Sketcher.Constraint("Coincident", 1, 2, 2, 1))
sketch7.addConstraint(Sketcher.Constraint("Coincident", 2, 2, 3, 2))
sketch7.addConstraint(Sketcher.Constraint("Coincident", 6, 1, 0, 1))
sketch7.addConstraint(Sketcher.Constraint("Coincident", 7, 2, 8, 2))
sketch7.addConstraint(Sketcher.Constraint("Coincident", 10, 1, 11, 1))
sketch7.addConstraint(Sketcher.Constraint("Coincident", 11, 2, 12, 1))
sketch7.addConstraint(Sketcher.Constraint("Coincident", 12, 2, 7, 1))
sketch7.addConstraint(Sketcher.Constraint("Coincident", 13, 2, 14, 2))
sketch7.addConstraint(Sketcher.Constraint("Coincident", 15, 1, 16, 1))
sketch7.addConstraint(Sketcher.Constraint("Coincident", 16, 2, 17, 1))
sketch7.addConstraint(Sketcher.Constraint("Coincident", 17, 2, 13, 1))
sketch7.addConstraint(Sketcher.Constraint("Coincident", 18, 2, 19, 2))
sketch7.addConstraint(Sketcher.Constraint("Coincident", 21, 1, 22, 1))
sketch7.addConstraint(Sketcher.Constraint("Coincident", 22, 2, 23, 1))
sketch7.addConstraint(Sketcher.Constraint("Coincident", 23, 2, 24, 1))
sketch7.addConstraint(Sketcher.Constraint("Coincident", 24, 2, 25, 1))
sketch7.addConstraint(Sketcher.Constraint("Coincident", 25, 2, 26, 1))
sketch7.addConstraint(Sketcher.Constraint("Coincident", 26, 2, 27, 2))
sketch7.addConstraint(Sketcher.Constraint("Coincident", 29, 1, 18, 1))
sketch7.addConstraint(Sketcher.Constraint("Horizontal", 0))
sketch7.addConstraint(Sketcher.Constraint("Vertical", 1))
sketch7.addConstraint(Sketcher.Constraint("Horizontal", 2))
sketch7.addConstraint(Sketcher.Constraint("Horizontal", 7))
sketch7.addConstraint(Sketcher.Constraint("Horizontal", 11))
sketch7.addConstraint(Sketcher.Constraint("Vertical", 12))
sketch7.addConstraint(Sketcher.Constraint("Horizontal", 13))
sketch7.addConstraint(Sketcher.Constraint("Horizontal", 16))
sketch7.addConstraint(Sketcher.Constraint("Vertical", 17))
sketch7.addConstraint(Sketcher.Constraint("Horizontal", 23))
sketch7.addConstraint(Sketcher.Constraint("Vertical", 24))
sketch7.addConstraint(Sketcher.Constraint("Horizontal", 25))
sketch7.addConstraint(Sketcher.Constraint("Horizontal", 2, 2, 22, 2))
sketch7.addConstraint(Sketcher.Constraint("Horizontal", 11, 2, 24, 2))
sketch7.addConstraint(Sketcher.Constraint("Vertical", 12, 2, 16, 2))
sketch7.addConstraint(Sketcher.Constraint("DistanceX", -1, 1, 23, 2, Q("13.0689 mm")))
sketch7.addConstraint(Sketcher.Constraint("DistanceX", 22, 2, 25, 2, Q("0.749499 mm")))
sketch7.addConstraint(Sketcher.Constraint("DistanceX", 25, 2, 26, 2, Q("0.875701 mm")))
sketch7.addConstraint(Sketcher.Constraint("DistanceX", 0, 2, 0, 1, Q("0.682893 mm")))
sketch7.addConstraint(Sketcher.Constraint("DistanceX", 7, 1, 7, 2, Q("0.208233 mm")))
pocket4 = body.newObject("PartDesign::Pocket", "Pocket003")
pocket4.Profile = sketch7
pocket4.setExpression("Length", "Params.pocket4_length")

doc.recompute()
